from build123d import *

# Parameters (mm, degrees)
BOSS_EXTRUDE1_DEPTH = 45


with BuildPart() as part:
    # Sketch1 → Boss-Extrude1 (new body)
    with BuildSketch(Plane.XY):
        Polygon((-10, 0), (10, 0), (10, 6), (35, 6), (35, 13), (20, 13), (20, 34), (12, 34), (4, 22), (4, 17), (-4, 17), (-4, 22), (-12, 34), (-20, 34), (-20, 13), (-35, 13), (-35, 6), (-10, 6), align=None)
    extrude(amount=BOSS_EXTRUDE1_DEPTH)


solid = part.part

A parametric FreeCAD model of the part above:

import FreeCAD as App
import Part
import Sketcher
from FreeCAD import Vector


def add_polygon(sketch, points):
    """Adds a closed chain of lines whose ends are joined by coincident constraints."""
    first, n = sketch.GeometryCount, len(points)
    for a, b in zip(points, points[1:] + points[:1]):
        sketch.addGeometry(Part.LineSegment(App.Vector(*a, 0), App.Vector(*b, 0)), False)
    for i in range(n):
        sketch.addConstraint(Sketcher.Constraint("Coincident", first + i, 2, first + (i + 1) % n, 1))

doc = App.newDocument("Part")
body = doc.addObject("PartDesign::Body", "Body")

# Sketch on XY plane
sketch1 = body.newObject("Sketcher::SketchObject", "Sketch")
sketch1.AttachmentSupport = (doc.getObject("XY_Plane"), [""])
sketch1.MapMode = "FlatFace"
add_polygon(sketch1, [(-10, 0), (10, 0), (10, 6), (35, 6), (35, 13), (20, 13), (20, 34), (12, 34), (4, 22), (4, 17), (-4, 17), (-4, 22), (-12, 34), (-20, 34), (-20, 13), (-35, 13), (-35, 6), (-10, 6)])  # lines 0-17
sketch1.addConstraint([
    Sketcher.Constraint("Horizontal", 0),
    Sketcher.Constraint("Vertical", 1),
    Sketcher.Constraint("Horizontal", 2),
    Sketcher.Constraint("Vertical", 3),
    Sketcher.Constraint("Horizontal", 4),
    Sketcher.Constraint("Vertical", 5),
    Sketcher.Constraint("Horizontal", 6),
    Sketcher.Constraint("Vertical", 8),
    Sketcher.Constraint("Horizontal", 9),
    Sketcher.Constraint("Vertical", 10),
    Sketcher.Constraint("Horizontal", 12),
    Sketcher.Constraint("Vertical", 13),
    Sketcher.Constraint("Horizontal", 14),
    Sketcher.Constraint("Vertical", 15),
    Sketcher.Constraint("Horizontal", 16),
    Sketcher.Constraint("Vertical", 17),
    Sketcher.Constraint("Symmetric", 0, 2, 17, 2, -1, 1),
    Sketcher.Constraint("Symmetric", 7, 2, 10, 2, -2),
    Sketcher.Constraint("Symmetric", 6, 2, 11, 2, -2),
    Sketcher.Constraint("Symmetric", 4, 2, 13, 2, -2),
    Sketcher.Constraint("Symmetric", 2, 2, 15, 2, -2),
    Sketcher.Constraint("Equal", 6, 9),
    Sketcher.Constraint("DistanceX", 0, 1, 0, 2, 20.0),
    Sketcher.Constraint("DistanceX", 2, 1, 2, 2, 25.0),
    Sketcher.Constraint("DistanceX", 4, 2, 4, 1, 15.0),
    Sketcher.Constraint("DistanceX", 6, 2, 6, 1, 8.0),
    Sketcher.Constraint("DistanceY", 1, 1, 1, 2, 6.0),
    Sketcher.Constraint("DistanceY", 3, 1, 3, 2, 7.0),
    Sketcher.Constraint("DistanceY", 5, 1, 5, 2, 21.0),
    Sketcher.Constraint("DistanceY", 8, 2, 8, 1, 5.0),
    Sketcher.Constraint("DistanceY", -1, 1, 7, 2, 22.0),
])
pad1 = body.newObject("PartDesign::Pad", "Pad")
pad1.Profile = sketch1
pad1.Length = 45

doc.recompute()
